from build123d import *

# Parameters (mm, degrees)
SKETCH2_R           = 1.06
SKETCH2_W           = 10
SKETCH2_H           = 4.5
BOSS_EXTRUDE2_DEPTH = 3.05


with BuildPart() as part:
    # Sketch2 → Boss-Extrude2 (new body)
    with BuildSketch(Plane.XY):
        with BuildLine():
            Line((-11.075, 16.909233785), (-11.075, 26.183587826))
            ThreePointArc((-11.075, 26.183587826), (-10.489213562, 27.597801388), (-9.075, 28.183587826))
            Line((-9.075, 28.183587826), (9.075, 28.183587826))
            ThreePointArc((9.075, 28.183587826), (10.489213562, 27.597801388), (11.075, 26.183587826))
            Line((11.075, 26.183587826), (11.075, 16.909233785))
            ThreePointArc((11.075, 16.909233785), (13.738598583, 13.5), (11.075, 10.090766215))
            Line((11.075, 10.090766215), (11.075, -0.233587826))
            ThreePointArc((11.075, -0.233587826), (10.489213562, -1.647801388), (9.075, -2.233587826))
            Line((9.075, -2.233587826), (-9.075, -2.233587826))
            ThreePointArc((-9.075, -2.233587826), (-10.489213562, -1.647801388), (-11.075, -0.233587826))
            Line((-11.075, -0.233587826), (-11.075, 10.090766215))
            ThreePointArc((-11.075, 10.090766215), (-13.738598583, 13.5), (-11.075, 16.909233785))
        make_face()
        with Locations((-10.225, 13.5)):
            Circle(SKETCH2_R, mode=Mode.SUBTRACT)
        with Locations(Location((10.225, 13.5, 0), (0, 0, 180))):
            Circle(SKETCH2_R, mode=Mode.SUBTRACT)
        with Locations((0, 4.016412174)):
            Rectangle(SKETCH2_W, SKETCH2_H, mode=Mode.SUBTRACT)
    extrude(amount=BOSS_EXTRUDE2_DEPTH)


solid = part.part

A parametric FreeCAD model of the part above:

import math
import FreeCAD as App
import Part
import Sketcher
Q = App.Units.Quantity

doc = App.newDocument("Part")
params = doc.addObject("Spreadsheet::Sheet", "Params")
for row, (alias, value) in enumerate([
    ("sketch1_radius", "2 mm"),
    ("sketch1_diameter", "2.12 mm"),
    ("sketch1_width", "10 mm"),
    ("sketch1_height", "4.5 mm"),
    ("sketch1_width2", "18.15 mm"),
    ("pad1_length", "3.05 mm"),
], start=1):
    params.set(f"A{row}", alias)
    params.set(f"B{row}", "=" + value)
    params.setAlias(f"B{row}", alias)

body = doc.addObject("PartDesign::Body", "Body")

sketch1 = body.newObject("Sketcher::SketchObject", "Sketch")
sketch1.AttachmentSupport = (doc.getObject("XY_Plane"), [""])
sketch1.MapMode = "FlatFace"
sketch1.addGeometry([
    Part.LineSegment(App.Vector(-11.1, 26.2, 0), App.Vector(-11.1, 16.9, 0)),
    Part.ArcOfCircle(Part.Circle(App.Vector(-10.2, 13.5, 0), App.Vector(0, 0, 1), 3.5), math.radians(104), math.radians(256)),
    Part.LineSegment(App.Vector(-11.1, 10.1, 0), App.Vector(-11.1, -0.2, 0)),
    Part.ArcOfCircle(Part.Circle(App.Vector(-9.1, -0.2, 0), App.Vector(0, 0, 1), 2), math.radians(-180), math.radians(-90)),
    Part.LineSegment(App.Vector(-9.1, -2.2, 0), App.Vector(9.1, -2.2, 0)),
    Part.ArcOfCircle(Part.Circle(App.Vector(9.1, -0.2, 0), App.Vector(0, 0, 1), 2), math.radians(-90), math.radians(0)),
    Part.LineSegment(App.Vector(11.1, -0.2, 0), App.Vector(11.1, 10.1, 0)),
    Part.ArcOfCircle(Part.Circle(App.Vector(10.2, 13.5, 0), App.Vector(0, 0, 1), 3.5), math.radians(-76), math.radians(76)),
    Part.LineSegment(App.Vector(11.1, 16.9, 0), App.Vector(11.1, 26.2, 0)),
    Part.ArcOfCircle(Part.Circle(App.Vector(9.1, 26.2, 0), App.Vector(0, 0, 1), 2), math.radians(0), math.radians(90)),
    Part.LineSegment(App.Vector(9.1, 28.2, 0), App.Vector(-9.1, 28.2, 0)),
    Part.ArcOfCircle(Part.Circle(App.Vector(-9.1, 26.2, 0), App.Vector(0, 0, 1), 2), math.radians(90), math.radians(180)),
    Part.LineSegment(App.Vector(-5, 1.8, 0), App.Vector(-5, 6.3, 0)),
    Part.LineSegment(App.Vector(-5, 6.3, 0), App.Vector(5, 6.3, 0)),
    Part.LineSegment(App.Vector(5, 6.3, 0), App.Vector(5, 1.8, 0)),
    Part.LineSegment(App.Vector(5, 1.8, 0), App.Vector(-5, 1.8, 0)),
    Part.Circle(App.Vector(10.2, 13.5, 0), App.Vector(0, 0, 1), 1.1),
    Part.Circle(App.Vector(-10.2, 13.5, 0), App.Vector(0, 0, 1), 1.1),
], False)
sketch1.addConstraint([
    Sketcher.Constraint("Coincident", 0, 2, 1, 1),
    Sketcher.Constraint("Coincident", 1, 2, 2, 1),
    Sketcher.Constraint("Tangent", 2, 2, 3, 1),
    Sketcher.Constraint("Tangent", 3, 2, 4, 1),
    Sketcher.Constraint("Tangent", 4, 2, 5, 1),
    Sketcher.Constraint("Tangent", 5, 2, 6, 1),
    Sketcher.Constraint("Coincident", 6, 2, 7, 1),
    Sketcher.Constraint("Coincident", 7, 2, 8, 1),
    Sketcher.Constraint("Tangent", 8, 2, 9, 1),
    Sketcher.Constraint("Tangent", 9, 2, 10, 1),
    Sketcher.Constraint("Tangent", 10, 2, 11, 1),
    Sketcher.Constraint("Tangent", 11, 2, 0, 1),
    Sketcher.Constraint("Coincident", 12, 2, 13, 1),
    Sketcher.Constraint("Coincident", 13, 2, 14, 1),
    Sketcher.Constraint("Coincident", 14, 2, 15, 1),
    Sketcher.Constraint("Coincident", 15, 2, 12, 1),
    Sketcher.Constraint("Vertical", 0),
    Sketcher.Constraint("Vertical", 2),
    Sketcher.Constraint("Horizontal", 4),
    Sketcher.Constraint("Vertical", 6),
    Sketcher.Constraint("Vertical", 8),
    Sketcher.Constraint("Horizontal", 10),
    Sketcher.Constraint("Vertical", 12),
    Sketcher.Constraint("Horizontal", 13),
    Sketcher.Constraint("Vertical", 14),
    Sketcher.Constraint("Horizontal", 15),
    Sketcher.Constraint("Coincident", 16, 3, 7, 3),
    Sketcher.Constraint("Coincident", 17, 3, 1, 3),
    Sketcher.Constraint("Equal", 3, 5),
    Sketcher.Constraint("Equal", 1, 7),
    Sketcher.Constraint("Equal", 5, 9),
    Sketcher.Constraint("Equal", 9, 11),
    Sketcher.Constraint("Equal", 16, 17),
    Sketcher.Constraint("Symmetric", 1, 3, 7, 3, -2),
    Sketcher.Constraint("Horizontal", 1, 2, 6, 2),
    Sketcher.Constraint("Horizontal", 0, 2, 7, 2),
    Sketcher.Constraint("Vertical", 5, 3, 9, 3),
    Sketcher.Constraint("Radius", 3, Q("2 mm")),
    Sketcher.Constraint("Diameter", 16, Q("2.12 mm")),
    Sketcher.Constraint("DistanceX", 13, 1, 13, 2, Q("10 mm")),
    Sketcher.Constraint("DistanceY", 12, 1, 12, 2, Q("4.5 mm")),
    Sketcher.Constraint("DistanceX", 12, 2, -1, 1, Q("5 mm")),
    Sketcher.Constraint("DistanceY", 5, 3, 14, 2, Q("2 mm")),
    Sketcher.Constraint("DistanceX", 4, 1, 4, 2, Q("18.15 mm")),
    Sketcher.Constraint("DistanceY", -1, 1, 1, 3, Q("13.5 mm")),
    Sketcher.Constraint("Radius", 1, Q("3.513599 mm")),
    Sketcher.Constraint("DistanceX", 1, 3, 5, 3, Q("19.3 mm")),
    Sketcher.Constraint("DistanceY", 0, 2, 0, 1, Q("9.274354 mm")),
    Sketcher.Constraint("DistanceY", 2, 2, 2, 1, Q("10.324354 mm")),
])
sketch1.setExpression("Constraints[37]", "Params.sketch1_radius")
sketch1.setExpression("Constraints[38]", "Params.sketch1_diameter")
sketch1.setExpression("Constraints[39]", "Params.sketch1_width")
sketch1.setExpression("Constraints[40]", "Params.sketch1_height")
sketch1.setExpression("Constraints[43]", "Params.sketch1_width2")
pad1 = body.newObject("PartDesign::Pad", "Pad")
pad1.Profile = sketch1
pad1.setExpression("Length", "Params.pad1_length")

doc.recompute()
